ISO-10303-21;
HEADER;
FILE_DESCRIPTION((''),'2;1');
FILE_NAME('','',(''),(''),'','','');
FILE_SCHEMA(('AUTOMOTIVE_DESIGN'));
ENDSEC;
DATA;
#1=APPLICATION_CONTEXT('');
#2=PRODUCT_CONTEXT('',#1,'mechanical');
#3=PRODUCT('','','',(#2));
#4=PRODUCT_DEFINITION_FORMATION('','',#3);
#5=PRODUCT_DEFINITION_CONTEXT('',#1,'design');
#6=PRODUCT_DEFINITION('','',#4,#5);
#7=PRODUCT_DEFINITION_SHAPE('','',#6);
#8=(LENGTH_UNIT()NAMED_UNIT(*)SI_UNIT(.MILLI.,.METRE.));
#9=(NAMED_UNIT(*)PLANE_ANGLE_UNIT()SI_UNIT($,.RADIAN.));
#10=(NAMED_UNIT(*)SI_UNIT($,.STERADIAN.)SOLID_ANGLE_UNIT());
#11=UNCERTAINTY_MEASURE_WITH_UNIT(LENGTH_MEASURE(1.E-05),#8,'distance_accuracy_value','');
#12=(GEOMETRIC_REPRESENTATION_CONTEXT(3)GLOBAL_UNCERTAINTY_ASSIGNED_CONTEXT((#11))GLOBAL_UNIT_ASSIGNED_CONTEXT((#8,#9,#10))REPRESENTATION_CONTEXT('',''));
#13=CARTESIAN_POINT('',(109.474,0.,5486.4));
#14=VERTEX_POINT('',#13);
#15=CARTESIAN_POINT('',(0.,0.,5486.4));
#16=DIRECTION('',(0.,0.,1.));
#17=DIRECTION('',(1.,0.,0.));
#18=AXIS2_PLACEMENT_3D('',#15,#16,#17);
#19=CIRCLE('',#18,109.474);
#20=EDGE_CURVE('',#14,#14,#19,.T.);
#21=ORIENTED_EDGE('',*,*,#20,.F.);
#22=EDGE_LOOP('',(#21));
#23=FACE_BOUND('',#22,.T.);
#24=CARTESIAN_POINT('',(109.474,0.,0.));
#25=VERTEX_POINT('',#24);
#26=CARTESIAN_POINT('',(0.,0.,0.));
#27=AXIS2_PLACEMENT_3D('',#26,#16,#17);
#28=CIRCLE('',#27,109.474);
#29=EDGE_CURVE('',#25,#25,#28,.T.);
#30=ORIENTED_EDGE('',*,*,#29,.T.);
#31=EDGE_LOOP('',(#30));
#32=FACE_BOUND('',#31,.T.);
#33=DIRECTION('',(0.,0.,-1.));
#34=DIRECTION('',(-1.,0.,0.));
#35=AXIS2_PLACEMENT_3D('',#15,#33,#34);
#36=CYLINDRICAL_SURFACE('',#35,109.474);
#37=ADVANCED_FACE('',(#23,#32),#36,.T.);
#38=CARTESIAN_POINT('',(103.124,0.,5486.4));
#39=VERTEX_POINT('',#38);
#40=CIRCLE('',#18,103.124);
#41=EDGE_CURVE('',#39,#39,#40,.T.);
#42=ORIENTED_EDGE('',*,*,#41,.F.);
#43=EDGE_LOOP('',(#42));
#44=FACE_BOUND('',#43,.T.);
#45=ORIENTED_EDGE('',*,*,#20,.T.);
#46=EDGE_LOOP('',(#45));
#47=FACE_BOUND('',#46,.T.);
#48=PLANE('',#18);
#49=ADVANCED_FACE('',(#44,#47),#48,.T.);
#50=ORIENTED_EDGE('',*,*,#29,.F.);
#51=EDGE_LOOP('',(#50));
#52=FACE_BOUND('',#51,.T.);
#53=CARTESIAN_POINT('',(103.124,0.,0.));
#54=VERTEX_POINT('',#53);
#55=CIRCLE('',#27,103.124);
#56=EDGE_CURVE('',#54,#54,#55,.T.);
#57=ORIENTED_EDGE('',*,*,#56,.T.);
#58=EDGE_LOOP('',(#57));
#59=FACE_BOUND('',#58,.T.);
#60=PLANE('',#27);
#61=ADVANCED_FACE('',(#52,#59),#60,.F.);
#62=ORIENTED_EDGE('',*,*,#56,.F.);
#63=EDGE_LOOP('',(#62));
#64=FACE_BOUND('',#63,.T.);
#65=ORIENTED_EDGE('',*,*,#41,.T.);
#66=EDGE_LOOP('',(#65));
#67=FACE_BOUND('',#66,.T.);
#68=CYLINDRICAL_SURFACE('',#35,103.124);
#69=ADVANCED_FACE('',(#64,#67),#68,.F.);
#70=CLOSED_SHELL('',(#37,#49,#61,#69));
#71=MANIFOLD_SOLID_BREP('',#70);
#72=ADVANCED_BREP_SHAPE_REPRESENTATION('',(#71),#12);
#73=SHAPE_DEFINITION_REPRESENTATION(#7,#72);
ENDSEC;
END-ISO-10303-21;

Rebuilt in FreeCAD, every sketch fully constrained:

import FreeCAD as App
import Part
import Sketcher
from FreeCAD import Vector
Q = App.Units.Quantity

doc = App.newDocument("Part")
body = doc.addObject("PartDesign::Body", "Body")

sketch1 = doc.addObject("Sketcher::SketchObject", "Sketch")
body.addObject(sketch1)
sketch1.AttachmentSupport = (doc.XY_Plane, [""])
sketch1.MapMode = "FlatFace"
sketch1.addGeometry([
    Part.Circle(Vector(0, 0, 0), Vector(0, 0, 1), 109),
    Part.Circle(Vector(0, 0, 0), Vector(0, 0, 1), 103),
], False)
sketch1.addConstraint([
    Sketcher.Constraint("Coincident", 0, 3, -1, 1),
    Sketcher.Constraint("Coincident", 1, 3, -1, 1),
    Sketcher.Constraint("Diameter", 0, Q("8.62 in")),
    Sketcher.Constraint("Diameter", 1, Q("8.12 in")),
])
pad1 = doc.addObject("PartDesign::Pad", "Pad")
body.addObject(pad1)
pad1.Profile = sketch1
pad1.Length = Q("216 in")

doc.recompute()
